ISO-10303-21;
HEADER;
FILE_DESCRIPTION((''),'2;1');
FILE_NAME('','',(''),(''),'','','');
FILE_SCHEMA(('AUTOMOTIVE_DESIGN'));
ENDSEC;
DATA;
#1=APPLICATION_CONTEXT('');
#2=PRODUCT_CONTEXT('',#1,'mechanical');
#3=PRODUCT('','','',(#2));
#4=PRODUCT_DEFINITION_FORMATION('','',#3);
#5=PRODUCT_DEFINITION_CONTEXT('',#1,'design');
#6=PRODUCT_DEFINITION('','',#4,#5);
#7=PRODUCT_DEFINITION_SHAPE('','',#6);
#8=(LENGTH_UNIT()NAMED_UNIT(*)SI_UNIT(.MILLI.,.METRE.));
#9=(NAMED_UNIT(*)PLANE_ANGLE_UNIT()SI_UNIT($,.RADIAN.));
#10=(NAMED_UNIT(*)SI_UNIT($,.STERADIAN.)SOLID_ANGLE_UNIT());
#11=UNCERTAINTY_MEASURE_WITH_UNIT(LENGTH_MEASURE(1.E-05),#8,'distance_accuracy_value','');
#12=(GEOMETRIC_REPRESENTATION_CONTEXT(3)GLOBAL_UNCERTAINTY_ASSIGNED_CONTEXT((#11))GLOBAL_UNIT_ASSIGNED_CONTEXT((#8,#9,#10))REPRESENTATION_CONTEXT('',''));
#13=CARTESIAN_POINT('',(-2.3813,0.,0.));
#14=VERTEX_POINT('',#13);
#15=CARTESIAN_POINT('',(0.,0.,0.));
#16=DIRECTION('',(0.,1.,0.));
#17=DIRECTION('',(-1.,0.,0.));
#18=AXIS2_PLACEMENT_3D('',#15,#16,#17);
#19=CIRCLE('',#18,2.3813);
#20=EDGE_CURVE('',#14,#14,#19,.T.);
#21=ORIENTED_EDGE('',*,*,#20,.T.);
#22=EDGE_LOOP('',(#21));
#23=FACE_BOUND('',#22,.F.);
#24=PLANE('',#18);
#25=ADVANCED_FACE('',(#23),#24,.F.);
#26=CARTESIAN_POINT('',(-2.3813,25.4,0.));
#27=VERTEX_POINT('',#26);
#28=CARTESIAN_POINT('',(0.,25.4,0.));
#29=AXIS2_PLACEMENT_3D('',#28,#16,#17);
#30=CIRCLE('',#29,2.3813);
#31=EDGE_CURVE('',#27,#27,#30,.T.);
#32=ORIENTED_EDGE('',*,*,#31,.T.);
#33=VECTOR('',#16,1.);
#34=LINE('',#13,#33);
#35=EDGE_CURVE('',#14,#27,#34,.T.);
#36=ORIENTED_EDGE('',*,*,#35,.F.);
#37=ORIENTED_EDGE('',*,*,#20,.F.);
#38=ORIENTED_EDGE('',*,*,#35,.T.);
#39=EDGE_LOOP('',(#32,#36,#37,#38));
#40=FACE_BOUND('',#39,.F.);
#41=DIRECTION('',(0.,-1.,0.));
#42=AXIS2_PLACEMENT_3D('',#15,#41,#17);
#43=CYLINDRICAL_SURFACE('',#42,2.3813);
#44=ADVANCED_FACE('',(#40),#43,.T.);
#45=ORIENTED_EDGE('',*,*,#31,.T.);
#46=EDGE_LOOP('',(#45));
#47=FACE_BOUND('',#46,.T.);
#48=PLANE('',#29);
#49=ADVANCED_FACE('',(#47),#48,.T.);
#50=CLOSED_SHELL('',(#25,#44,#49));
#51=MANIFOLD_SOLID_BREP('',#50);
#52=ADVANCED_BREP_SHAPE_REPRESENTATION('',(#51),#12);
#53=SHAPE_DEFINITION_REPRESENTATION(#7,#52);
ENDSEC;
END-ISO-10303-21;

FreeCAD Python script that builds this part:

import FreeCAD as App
import Part
import Sketcher

V = App.Vector
Q = App.Units.Quantity

doc = App.newDocument("Part")
body = doc.addObject("PartDesign::Body", "Body")

# Sketch on XZ plane
sketch1 = body.newObject("Sketcher::SketchObject", "Sketch")
sketch1.AttachmentSupport = (doc.getObject("XZ_Plane"), [""])
sketch1.MapMode = "FlatFace"
sketch1.addGeometry(Part.Circle(V(0, 0, 0), V(0, 0, 1), 2.3813), False)
sketch1.addConstraint([
    Sketcher.Constraint("Coincident", 0, 3, -1, 1),
    Sketcher.Constraint("Diameter", 0, Q("0.1875 in")),
])
pad1 = body.newObject("PartDesign::Pad", "Pad")
pad1.Profile = sketch1
pad1.Length = Q("1 in")
pad1.Reversed = True

doc.recompute()
